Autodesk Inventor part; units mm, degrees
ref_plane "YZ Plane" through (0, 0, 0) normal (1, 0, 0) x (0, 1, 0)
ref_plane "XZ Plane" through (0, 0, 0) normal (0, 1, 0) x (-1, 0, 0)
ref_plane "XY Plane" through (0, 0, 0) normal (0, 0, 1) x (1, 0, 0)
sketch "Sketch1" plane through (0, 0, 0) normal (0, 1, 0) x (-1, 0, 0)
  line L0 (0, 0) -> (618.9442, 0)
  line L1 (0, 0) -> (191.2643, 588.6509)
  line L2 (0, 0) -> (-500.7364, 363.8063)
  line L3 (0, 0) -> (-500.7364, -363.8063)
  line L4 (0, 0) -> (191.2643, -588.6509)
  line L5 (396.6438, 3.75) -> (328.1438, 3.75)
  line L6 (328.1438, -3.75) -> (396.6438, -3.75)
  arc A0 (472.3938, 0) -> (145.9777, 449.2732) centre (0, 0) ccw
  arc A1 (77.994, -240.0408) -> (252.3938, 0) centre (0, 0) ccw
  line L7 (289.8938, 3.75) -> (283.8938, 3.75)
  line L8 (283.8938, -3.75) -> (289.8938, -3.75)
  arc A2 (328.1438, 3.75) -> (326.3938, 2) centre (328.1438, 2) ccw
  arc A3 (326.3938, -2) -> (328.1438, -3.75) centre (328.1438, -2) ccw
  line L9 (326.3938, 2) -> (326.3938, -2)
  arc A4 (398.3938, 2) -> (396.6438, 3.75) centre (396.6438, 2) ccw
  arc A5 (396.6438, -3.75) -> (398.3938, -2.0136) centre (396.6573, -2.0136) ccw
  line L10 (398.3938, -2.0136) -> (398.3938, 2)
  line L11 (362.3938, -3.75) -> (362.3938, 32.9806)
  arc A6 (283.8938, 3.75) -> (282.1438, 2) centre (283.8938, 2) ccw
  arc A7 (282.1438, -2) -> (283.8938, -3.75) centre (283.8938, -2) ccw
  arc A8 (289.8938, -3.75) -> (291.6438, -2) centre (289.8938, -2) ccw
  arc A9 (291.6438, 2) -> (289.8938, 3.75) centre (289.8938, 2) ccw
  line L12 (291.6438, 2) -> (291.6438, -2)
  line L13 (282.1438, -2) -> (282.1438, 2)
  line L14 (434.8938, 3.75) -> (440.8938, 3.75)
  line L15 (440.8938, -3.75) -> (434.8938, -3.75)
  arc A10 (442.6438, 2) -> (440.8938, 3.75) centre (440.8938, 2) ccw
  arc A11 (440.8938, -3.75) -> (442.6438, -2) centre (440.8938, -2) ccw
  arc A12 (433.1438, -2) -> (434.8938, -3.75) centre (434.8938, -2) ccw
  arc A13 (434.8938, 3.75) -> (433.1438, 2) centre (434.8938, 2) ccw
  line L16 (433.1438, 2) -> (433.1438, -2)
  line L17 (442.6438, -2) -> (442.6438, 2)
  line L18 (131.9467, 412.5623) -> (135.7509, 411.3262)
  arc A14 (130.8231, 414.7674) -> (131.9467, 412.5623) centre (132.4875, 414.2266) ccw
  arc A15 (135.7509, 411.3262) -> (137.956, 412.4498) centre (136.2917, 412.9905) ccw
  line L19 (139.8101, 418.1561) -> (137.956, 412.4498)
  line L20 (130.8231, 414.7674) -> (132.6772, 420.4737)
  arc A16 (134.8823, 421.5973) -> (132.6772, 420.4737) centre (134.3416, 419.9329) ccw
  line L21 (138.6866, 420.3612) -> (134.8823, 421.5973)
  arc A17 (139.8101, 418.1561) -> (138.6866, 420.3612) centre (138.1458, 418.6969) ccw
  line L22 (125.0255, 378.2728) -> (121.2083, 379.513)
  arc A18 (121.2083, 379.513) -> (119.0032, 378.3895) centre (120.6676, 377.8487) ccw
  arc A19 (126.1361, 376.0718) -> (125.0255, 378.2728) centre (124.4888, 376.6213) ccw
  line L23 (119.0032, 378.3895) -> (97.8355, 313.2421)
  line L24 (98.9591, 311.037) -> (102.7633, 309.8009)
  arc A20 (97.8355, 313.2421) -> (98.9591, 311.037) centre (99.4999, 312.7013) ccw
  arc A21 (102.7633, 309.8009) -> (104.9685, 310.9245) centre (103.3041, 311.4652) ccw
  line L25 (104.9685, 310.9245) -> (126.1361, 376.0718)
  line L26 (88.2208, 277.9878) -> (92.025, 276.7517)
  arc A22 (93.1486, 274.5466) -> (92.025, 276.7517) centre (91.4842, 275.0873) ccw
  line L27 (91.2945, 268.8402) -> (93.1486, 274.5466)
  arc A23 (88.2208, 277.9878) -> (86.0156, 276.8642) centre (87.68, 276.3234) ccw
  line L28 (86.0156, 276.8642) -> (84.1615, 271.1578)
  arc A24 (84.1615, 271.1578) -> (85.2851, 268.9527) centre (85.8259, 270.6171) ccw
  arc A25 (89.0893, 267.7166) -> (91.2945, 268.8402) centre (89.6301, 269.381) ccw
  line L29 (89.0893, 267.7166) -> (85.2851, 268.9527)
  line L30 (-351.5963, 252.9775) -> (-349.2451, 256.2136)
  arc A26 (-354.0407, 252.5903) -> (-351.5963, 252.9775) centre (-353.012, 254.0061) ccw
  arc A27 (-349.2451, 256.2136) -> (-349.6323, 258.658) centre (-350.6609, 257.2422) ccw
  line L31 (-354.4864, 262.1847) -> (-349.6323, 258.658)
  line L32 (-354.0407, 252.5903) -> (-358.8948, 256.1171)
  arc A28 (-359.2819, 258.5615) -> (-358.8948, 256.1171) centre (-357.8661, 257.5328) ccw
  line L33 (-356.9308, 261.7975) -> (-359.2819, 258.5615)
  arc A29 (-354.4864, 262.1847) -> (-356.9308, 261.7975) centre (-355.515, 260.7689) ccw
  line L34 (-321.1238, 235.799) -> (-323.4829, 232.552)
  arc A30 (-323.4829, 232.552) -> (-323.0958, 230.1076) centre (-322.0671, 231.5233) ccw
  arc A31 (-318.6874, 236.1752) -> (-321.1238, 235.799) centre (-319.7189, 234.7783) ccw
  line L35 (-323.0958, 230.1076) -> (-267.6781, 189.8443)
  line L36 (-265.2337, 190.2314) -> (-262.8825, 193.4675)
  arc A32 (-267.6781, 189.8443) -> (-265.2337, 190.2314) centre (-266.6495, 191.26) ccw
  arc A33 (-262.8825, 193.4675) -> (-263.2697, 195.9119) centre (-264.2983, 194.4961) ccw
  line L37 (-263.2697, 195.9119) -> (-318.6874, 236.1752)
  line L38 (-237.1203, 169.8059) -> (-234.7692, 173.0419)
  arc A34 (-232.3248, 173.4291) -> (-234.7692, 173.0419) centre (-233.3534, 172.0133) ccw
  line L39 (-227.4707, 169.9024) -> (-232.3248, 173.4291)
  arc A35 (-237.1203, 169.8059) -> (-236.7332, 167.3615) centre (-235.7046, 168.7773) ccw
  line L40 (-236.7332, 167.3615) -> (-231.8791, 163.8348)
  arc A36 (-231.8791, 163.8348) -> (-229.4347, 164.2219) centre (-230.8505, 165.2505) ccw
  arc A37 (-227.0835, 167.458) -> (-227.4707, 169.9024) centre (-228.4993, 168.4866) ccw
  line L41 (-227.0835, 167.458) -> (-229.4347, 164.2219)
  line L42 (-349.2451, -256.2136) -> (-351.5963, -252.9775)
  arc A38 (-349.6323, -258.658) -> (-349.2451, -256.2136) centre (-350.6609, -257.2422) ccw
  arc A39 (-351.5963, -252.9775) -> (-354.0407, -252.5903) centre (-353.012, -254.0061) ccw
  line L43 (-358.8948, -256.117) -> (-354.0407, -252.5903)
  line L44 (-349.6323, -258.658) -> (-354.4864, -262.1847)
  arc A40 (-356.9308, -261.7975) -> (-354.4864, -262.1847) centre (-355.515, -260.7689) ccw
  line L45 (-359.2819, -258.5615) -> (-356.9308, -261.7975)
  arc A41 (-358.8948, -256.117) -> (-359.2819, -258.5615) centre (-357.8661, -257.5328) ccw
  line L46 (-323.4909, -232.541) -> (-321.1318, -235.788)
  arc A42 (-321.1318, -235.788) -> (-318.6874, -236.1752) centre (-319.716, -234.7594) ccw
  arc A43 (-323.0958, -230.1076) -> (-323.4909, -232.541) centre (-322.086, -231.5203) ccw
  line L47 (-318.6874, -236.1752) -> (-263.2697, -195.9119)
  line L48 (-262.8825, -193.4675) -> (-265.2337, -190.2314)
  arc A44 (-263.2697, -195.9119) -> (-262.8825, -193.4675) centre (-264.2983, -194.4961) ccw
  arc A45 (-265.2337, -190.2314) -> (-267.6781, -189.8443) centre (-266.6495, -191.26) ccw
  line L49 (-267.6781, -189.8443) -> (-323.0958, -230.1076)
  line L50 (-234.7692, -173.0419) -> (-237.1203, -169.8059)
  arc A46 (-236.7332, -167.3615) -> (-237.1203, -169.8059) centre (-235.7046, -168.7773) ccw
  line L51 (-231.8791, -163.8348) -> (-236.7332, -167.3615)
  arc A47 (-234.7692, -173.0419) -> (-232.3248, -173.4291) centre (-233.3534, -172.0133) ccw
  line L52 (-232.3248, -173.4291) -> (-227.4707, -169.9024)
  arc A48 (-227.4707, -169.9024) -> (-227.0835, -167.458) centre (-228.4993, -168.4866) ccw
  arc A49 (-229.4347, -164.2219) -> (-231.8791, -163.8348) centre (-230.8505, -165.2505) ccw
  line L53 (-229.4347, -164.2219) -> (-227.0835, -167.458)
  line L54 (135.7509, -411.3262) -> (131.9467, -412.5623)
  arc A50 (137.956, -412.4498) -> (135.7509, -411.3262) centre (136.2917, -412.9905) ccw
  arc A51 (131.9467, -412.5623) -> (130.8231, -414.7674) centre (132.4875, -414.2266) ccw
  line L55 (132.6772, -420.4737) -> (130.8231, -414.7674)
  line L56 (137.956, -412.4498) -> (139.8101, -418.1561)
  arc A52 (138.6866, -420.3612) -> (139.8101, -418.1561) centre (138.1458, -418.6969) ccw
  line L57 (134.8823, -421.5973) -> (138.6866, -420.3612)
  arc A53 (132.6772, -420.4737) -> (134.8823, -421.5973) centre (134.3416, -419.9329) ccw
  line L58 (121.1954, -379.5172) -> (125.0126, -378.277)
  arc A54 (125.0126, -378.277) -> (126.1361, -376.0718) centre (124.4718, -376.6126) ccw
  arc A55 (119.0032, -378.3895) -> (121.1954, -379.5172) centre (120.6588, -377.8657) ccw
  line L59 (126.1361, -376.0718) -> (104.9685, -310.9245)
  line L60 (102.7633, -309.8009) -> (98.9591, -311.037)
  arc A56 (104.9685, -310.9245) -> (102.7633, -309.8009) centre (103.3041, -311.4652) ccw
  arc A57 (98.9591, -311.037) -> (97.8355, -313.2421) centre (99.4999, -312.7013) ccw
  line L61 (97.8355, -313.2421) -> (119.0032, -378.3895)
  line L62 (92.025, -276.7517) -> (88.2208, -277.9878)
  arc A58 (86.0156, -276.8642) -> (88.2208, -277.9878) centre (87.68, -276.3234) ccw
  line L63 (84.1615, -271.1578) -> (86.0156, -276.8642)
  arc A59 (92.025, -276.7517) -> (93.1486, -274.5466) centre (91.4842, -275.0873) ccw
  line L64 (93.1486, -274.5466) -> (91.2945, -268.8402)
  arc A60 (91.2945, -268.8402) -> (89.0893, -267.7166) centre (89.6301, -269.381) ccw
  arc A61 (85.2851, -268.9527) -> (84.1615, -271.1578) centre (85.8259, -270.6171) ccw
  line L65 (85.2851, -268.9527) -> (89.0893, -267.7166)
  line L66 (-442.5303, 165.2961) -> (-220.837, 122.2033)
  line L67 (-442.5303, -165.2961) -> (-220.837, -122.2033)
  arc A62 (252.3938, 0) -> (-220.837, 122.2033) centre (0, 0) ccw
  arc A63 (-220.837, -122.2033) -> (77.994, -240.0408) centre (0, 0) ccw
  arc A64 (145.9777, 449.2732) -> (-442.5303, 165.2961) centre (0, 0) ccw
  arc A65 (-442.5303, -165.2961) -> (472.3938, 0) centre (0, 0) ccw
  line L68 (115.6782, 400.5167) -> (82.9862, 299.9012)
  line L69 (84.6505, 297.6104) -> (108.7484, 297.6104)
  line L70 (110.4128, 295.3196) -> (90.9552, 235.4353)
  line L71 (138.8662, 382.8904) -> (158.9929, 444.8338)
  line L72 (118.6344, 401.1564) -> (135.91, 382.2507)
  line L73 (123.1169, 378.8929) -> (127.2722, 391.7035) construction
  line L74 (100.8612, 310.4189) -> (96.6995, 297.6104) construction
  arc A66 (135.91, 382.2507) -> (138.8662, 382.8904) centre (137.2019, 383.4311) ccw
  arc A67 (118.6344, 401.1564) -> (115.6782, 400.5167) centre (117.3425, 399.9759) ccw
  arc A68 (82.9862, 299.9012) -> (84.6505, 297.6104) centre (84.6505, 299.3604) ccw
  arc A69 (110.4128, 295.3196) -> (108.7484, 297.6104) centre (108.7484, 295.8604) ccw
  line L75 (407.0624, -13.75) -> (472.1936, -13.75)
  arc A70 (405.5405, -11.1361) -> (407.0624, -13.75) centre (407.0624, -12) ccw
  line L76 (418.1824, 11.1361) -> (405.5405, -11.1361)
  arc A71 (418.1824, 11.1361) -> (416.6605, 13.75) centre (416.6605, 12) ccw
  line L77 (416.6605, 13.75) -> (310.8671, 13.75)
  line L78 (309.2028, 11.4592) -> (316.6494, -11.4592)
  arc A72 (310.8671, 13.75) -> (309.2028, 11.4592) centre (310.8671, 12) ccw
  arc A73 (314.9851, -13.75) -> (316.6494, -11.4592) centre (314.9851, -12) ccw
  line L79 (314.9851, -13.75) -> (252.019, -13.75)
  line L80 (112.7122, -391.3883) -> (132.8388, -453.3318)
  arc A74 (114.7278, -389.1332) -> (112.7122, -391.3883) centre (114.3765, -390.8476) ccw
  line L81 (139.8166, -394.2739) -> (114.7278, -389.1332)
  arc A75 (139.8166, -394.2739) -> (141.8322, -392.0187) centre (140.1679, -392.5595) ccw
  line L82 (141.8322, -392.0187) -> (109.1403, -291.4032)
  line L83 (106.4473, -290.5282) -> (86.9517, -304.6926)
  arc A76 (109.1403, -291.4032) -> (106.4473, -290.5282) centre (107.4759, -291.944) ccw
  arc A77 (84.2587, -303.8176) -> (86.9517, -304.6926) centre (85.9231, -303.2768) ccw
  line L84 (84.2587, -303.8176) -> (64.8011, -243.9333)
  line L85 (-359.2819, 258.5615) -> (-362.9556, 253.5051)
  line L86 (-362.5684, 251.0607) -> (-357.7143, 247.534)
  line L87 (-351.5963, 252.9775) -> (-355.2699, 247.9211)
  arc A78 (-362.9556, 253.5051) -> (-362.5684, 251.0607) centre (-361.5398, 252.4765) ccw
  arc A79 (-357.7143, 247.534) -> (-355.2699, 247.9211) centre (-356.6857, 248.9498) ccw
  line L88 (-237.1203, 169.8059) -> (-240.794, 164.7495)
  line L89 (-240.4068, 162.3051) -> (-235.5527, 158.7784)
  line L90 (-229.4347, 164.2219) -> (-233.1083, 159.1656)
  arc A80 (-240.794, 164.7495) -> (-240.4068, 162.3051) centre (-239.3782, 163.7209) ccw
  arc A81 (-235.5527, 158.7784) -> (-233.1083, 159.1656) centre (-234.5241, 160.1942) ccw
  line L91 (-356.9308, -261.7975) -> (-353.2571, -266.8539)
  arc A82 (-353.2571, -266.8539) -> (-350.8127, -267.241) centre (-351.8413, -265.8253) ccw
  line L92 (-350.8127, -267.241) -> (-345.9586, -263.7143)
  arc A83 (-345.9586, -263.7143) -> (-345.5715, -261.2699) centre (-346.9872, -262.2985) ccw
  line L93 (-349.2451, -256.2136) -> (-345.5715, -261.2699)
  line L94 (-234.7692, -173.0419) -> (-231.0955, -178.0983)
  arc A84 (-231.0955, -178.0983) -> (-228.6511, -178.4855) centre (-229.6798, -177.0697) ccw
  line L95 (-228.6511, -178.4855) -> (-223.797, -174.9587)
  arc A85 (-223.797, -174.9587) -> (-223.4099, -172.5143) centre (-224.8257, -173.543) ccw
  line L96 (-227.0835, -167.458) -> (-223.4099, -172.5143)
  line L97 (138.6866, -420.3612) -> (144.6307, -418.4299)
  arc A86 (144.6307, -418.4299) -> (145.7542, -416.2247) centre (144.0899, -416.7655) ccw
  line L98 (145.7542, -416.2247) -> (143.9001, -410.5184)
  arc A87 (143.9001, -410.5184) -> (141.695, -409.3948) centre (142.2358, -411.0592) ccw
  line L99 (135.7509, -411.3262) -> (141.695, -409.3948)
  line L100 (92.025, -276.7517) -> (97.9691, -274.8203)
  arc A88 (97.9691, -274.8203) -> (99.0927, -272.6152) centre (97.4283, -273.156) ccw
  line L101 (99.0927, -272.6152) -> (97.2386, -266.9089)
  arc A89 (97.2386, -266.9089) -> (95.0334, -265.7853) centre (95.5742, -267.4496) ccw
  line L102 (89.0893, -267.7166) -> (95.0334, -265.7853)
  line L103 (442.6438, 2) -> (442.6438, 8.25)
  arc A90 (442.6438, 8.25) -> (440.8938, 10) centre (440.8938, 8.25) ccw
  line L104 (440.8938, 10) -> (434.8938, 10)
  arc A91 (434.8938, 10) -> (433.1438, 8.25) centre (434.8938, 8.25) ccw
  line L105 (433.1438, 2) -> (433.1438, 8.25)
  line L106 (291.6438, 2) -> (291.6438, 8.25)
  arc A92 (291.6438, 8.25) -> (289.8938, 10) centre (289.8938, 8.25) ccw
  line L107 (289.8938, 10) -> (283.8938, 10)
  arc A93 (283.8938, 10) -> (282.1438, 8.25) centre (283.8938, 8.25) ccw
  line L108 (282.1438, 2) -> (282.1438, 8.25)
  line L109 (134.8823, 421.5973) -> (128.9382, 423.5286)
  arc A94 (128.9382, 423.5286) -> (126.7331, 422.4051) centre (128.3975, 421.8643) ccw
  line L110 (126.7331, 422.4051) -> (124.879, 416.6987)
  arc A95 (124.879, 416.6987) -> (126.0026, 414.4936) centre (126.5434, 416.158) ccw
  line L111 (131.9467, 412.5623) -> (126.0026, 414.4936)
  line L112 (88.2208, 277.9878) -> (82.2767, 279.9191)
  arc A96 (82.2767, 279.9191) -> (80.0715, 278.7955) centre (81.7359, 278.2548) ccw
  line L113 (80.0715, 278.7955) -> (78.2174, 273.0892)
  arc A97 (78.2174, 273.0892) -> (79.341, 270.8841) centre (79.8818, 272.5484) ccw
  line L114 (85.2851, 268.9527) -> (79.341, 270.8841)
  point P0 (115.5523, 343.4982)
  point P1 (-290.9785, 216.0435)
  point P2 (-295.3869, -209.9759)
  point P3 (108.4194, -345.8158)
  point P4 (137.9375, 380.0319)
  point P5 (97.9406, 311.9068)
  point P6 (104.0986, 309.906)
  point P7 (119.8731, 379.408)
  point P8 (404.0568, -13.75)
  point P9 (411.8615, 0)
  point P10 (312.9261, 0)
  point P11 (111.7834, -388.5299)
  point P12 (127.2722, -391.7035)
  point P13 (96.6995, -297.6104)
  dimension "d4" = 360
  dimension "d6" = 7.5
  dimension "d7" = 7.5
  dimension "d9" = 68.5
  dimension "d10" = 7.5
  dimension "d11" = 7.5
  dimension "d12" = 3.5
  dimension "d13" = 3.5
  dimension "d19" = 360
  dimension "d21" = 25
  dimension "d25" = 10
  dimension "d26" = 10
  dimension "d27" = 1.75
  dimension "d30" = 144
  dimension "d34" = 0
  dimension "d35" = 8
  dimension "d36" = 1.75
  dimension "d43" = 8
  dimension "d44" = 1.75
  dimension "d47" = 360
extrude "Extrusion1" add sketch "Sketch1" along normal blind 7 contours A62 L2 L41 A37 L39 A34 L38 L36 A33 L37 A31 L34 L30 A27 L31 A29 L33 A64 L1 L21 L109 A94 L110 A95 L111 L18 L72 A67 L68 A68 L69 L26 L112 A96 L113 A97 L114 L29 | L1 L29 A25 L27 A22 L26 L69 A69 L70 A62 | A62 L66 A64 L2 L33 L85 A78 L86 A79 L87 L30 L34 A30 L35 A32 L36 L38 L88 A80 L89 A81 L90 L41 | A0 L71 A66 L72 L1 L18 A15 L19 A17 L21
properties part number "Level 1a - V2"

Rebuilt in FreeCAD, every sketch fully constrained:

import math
import FreeCAD as App
import Part
import Sketcher
from FreeCAD import Vector
Q = App.Units.Quantity

doc = App.newDocument("Part")
body = doc.addObject("PartDesign::Body", "Body")

sketch1 = body.newObject("Sketcher::SketchObject", "Sketch")
sketch1.AttachmentSupport = (doc.getObject("XZ_Plane"), [""])
sketch1.MapMode = "FlatFace"
sketch1.addGeometry([
    Part.LineSegment(Vector(-91, 235.4, 0), Vector(-110.4, 295.3, 0)),
    Part.ArcOfCircle(Part.Circle(Vector(-108.7, 295.9, 0), Vector(0, 0, 1), 1.8), math.radians(90), math.radians(198)),
    Part.LineSegment(Vector(-108.7, 297.6, 0), Vector(-84.7, 297.6, 0)),
    Part.ArcOfCircle(Part.Circle(Vector(-84.7, 299.4, 0), Vector(0, 0, 1), 1.7), math.radians(-90), math.radians(18)),
    Part.LineSegment(Vector(-83, 299.9, 0), Vector(-115.7, 400.5, 0)),
    Part.ArcOfCircle(Part.Circle(Vector(-117.3, 400, 0), Vector(0, 0, 1), 1.8), math.radians(18), math.radians(138)),
    Part.LineSegment(Vector(-118.6, 401.2, 0), Vector(-135.9, 382.3, 0)),
    Part.ArcOfCircle(Part.Circle(Vector(-137.2, 383.4, 0), Vector(0, 0, 1), 1.7), math.radians(-162), math.radians(-42)),
    Part.LineSegment(Vector(-138.9, 382.9, 0), Vector(-159, 444.8, 0)),
    Part.ArcOfCircle(Part.Circle(Vector(0, 0, 0), Vector(0, 0, 1), 472.4), math.radians(108), math.radians(109.67)),
    Part.ArcOfCircle(Part.Circle(Vector(0, 0, 0), Vector(0, 0, 1), 472.4), math.radians(20), math.radians(108)),
    Part.LineSegment(Vector(442.5, 165.3, 0), Vector(220.8, 122.2, 0)),
    Part.ArcOfCircle(Part.Circle(Vector(0, 0, 0), Vector(0, 0, 1), 252.4), math.radians(29), math.radians(111)),
    Part.LineSegment(Vector(227.1, 167.5, 0), Vector(229.4, 164.2, 0)),
    Part.LineSegment(Vector(229.4, 164.2, 0), Vector(233.1, 159.2, 0)),
    Part.ArcOfCircle(Part.Circle(Vector(234.5, 160.2, 0), Vector(0, 0, 1), 1.8), math.radians(-144), math.radians(-54)),
    Part.LineSegment(Vector(235.6, 158.8, 0), Vector(240.4, 162.3, 0)),
    Part.ArcOfCircle(Part.Circle(Vector(239.4, 163.7, 0), Vector(0, 0, 1), 1.8), math.radians(-54), math.radians(36)),
    Part.LineSegment(Vector(240.8, 164.7, 0), Vector(237.1, 169.8, 0)),
    Part.LineSegment(Vector(237.1, 169.8, 0), Vector(234.8, 173, 0)),
    Part.ArcOfCircle(Part.Circle(Vector(233.4, 172, 0), Vector(0, 0, 1), 1.8), math.radians(36), math.radians(126)),
    Part.LineSegment(Vector(232.3, 173.4, 0), Vector(227.5, 169.9, 0)),
    Part.ArcOfCircle(Part.Circle(Vector(228.5, 168.5, 0), Vector(0, 0, 1), 1.8), math.radians(126), math.radians(216)),
    Part.LineSegment(Vector(262.9, 193.5, 0), Vector(265.2, 190.2, 0)),
    Part.ArcOfCircle(Part.Circle(Vector(266.6, 191.3, 0), Vector(0, 0, 1), 1.7), math.radians(-144), math.radians(-54)),
    Part.LineSegment(Vector(267.7, 189.8, 0), Vector(323.1, 230.1, 0)),
    Part.ArcOfCircle(Part.Circle(Vector(322.1, 231.5, 0), Vector(0, 0, 1), 1.8), math.radians(-54), math.radians(36)),
    Part.LineSegment(Vector(323.5, 232.6, 0), Vector(321.1, 235.8, 0)),
    Part.ArcOfCircle(Part.Circle(Vector(319.7, 234.8, 0), Vector(0, 0, 1), 1.7), math.radians(36), math.radians(126)),
    Part.LineSegment(Vector(318.7, 236.2, 0), Vector(263.3, 195.9, 0)),
    Part.ArcOfCircle(Part.Circle(Vector(264.3, 194.5, 0), Vector(0, 0, 1), 1.8), math.radians(126), math.radians(216)),
    Part.LineSegment(Vector(349.2, 256.2, 0), Vector(351.6, 253, 0)),
    Part.LineSegment(Vector(351.6, 253, 0), Vector(355.3, 247.9, 0)),
    Part.ArcOfCircle(Part.Circle(Vector(356.7, 248.9, 0), Vector(0, 0, 1), 1.8), math.radians(-144), math.radians(-54)),
    Part.LineSegment(Vector(357.7, 247.5, 0), Vector(362.6, 251.1, 0)),
    Part.ArcOfCircle(Part.Circle(Vector(361.5, 252.5, 0), Vector(0, 0, 1), 1.8), math.radians(-54), math.radians(36)),
    Part.LineSegment(Vector(363, 253.5, 0), Vector(359.3, 258.6, 0)),
    Part.LineSegment(Vector(359.3, 258.6, 0), Vector(356.9, 261.8, 0)),
    Part.ArcOfCircle(Part.Circle(Vector(355.5, 260.8, 0), Vector(0, 0, 1), 1.8), math.radians(36), math.radians(126)),
    Part.LineSegment(Vector(354.5, 262.2, 0), Vector(349.6, 258.7, 0)),
    Part.ArcOfCircle(Part.Circle(Vector(350.7, 257.2, 0), Vector(0, 0, 1), 1.8), math.radians(126), math.radians(216)),
    Part.LineSegment(Vector(-134.9, 421.6, 0), Vector(-138.7, 420.4, 0)),
    Part.ArcOfCircle(Part.Circle(Vector(-138.1, 418.7, 0), Vector(0, 0, 1), 1.7), math.radians(108), math.radians(198)),
    Part.LineSegment(Vector(-139.8, 418.2, 0), Vector(-138, 412.4, 0)),
    Part.ArcOfCircle(Part.Circle(Vector(-136.3, 413, 0), Vector(0, 0, 1), 1.7), math.radians(-162), math.radians(-72)),
    Part.LineSegment(Vector(-135.8, 411.3, 0), Vector(-131.9, 412.6, 0)),
    Part.LineSegment(Vector(-131.9, 412.6, 0), Vector(-126, 414.5, 0)),
    Part.ArcOfCircle(Part.Circle(Vector(-126.5, 416.2, 0), Vector(0, 0, 1), 1.8), math.radians(-72), math.radians(18)),
    Part.LineSegment(Vector(-124.9, 416.7, 0), Vector(-126.7, 422.4, 0)),
    Part.ArcOfCircle(Part.Circle(Vector(-128.4, 421.9, 0), Vector(0, 0, 1), 1.7), math.radians(18), math.radians(108)),
    Part.LineSegment(Vector(-128.9, 423.5, 0), Vector(-134.9, 421.6, 0)),
    Part.LineSegment(Vector(-88.2, 278, 0), Vector(-92, 276.8, 0)),
    Part.ArcOfCircle(Part.Circle(Vector(-91.5, 275.1, 0), Vector(0, 0, 1), 1.8), math.radians(108), math.radians(198)),
    Part.LineSegment(Vector(-93.1, 274.5, 0), Vector(-91.3, 268.8, 0)),
    Part.ArcOfCircle(Part.Circle(Vector(-89.6, 269.4, 0), Vector(0, 0, 1), 1.8), math.radians(-162), math.radians(-72)),
    Part.LineSegment(Vector(-89.1, 267.7, 0), Vector(-85.3, 269, 0)),
    Part.LineSegment(Vector(-85.3, 269, 0), Vector(-79.3, 270.9, 0)),
    Part.ArcOfCircle(Part.Circle(Vector(-79.9, 272.5, 0), Vector(0, 0, 1), 1.8), math.radians(-72), math.radians(18)),
    Part.LineSegment(Vector(-78.2, 273.1, 0), Vector(-80.1, 278.8, 0)),
    Part.ArcOfCircle(Part.Circle(Vector(-81.7, 278.3, 0), Vector(0, 0, 1), 1.7), math.radians(18), math.radians(108)),
    Part.LineSegment(Vector(-82.3, 279.9, 0), Vector(-88.2, 278, 0)),
], False)
sketch1.addConstraint([
    Sketcher.Constraint("Tangent", 0, 2, 1, 2),
    Sketcher.Constraint("Tangent", 1, 1, 2, 1),
    Sketcher.Constraint("Tangent", 2, 2, 3, 1),
    Sketcher.Constraint("Tangent", 3, 2, 4, 1),
    Sketcher.Constraint("Tangent", 4, 2, 5, 1),
    Sketcher.Constraint("Tangent", 5, 2, 6, 1),
    Sketcher.Constraint("Tangent", 6, 2, 7, 2),
    Sketcher.Constraint("Tangent", 7, 1, 8, 1),
    Sketcher.Constraint("Coincident", 8, 2, 9, 2),
    Sketcher.Constraint("Tangent", 9, 1, 10, 2),
    Sketcher.Constraint("Coincident", 10, 1, 11, 1),
    Sketcher.Constraint("Coincident", 11, 2, 12, 1),
    Sketcher.Constraint("Coincident", 12, 2, 0, 1),
    Sketcher.Constraint("Coincident", 13, 2, 14, 1),
    Sketcher.Constraint("Tangent", 14, 2, 15, 1),
    Sketcher.Constraint("Tangent", 15, 2, 16, 1),
    Sketcher.Constraint("Tangent", 16, 2, 17, 1),
    Sketcher.Constraint("Tangent", 17, 2, 18, 1),
    Sketcher.Constraint("Coincident", 18, 2, 19, 1),
    Sketcher.Constraint("Tangent", 19, 2, 20, 1),
    Sketcher.Constraint("Tangent", 20, 2, 21, 1),
    Sketcher.Constraint("Tangent", 21, 2, 22, 1),
    Sketcher.Constraint("Tangent", 22, 2, 13, 1),
    Sketcher.Constraint("Tangent", 23, 2, 24, 1),
    Sketcher.Constraint("Tangent", 24, 2, 25, 1),
    Sketcher.Constraint("Tangent", 25, 2, 26, 1),
    Sketcher.Constraint("Tangent", 26, 2, 27, 1),
    Sketcher.Constraint("Tangent", 27, 2, 28, 1),
    Sketcher.Constraint("Coincident", 28, 2, 29, 1),
    Sketcher.Constraint("Tangent", 29, 2, 30, 1),
    Sketcher.Constraint("Tangent", 30, 2, 23, 1),
    Sketcher.Constraint("Coincident", 31, 2, 32, 1),
    Sketcher.Constraint("Tangent", 32, 2, 33, 1),
    Sketcher.Constraint("Tangent", 33, 2, 34, 1),
    Sketcher.Constraint("Tangent", 34, 2, 35, 1),
    Sketcher.Constraint("Tangent", 35, 2, 36, 1),
    Sketcher.Constraint("Coincident", 36, 2, 37, 1),
    Sketcher.Constraint("Tangent", 37, 2, 38, 1),
    Sketcher.Constraint("Tangent", 38, 2, 39, 1),
    Sketcher.Constraint("Tangent", 39, 2, 40, 1),
    Sketcher.Constraint("Tangent", 40, 2, 31, 1),
    Sketcher.Constraint("Tangent", 41, 2, 42, 1),
    Sketcher.Constraint("Tangent", 42, 2, 43, 1),
    Sketcher.Constraint("Tangent", 43, 2, 44, 1),
    Sketcher.Constraint("Tangent", 44, 2, 45, 1),
    Sketcher.Constraint("Coincident", 45, 2, 46, 1),
    Sketcher.Constraint("Tangent", 46, 2, 47, 1),
    Sketcher.Constraint("Tangent", 47, 2, 48, 1),
    Sketcher.Constraint("Tangent", 48, 2, 49, 1),
    Sketcher.Constraint("Tangent", 49, 2, 50, 1),
    Sketcher.Constraint("Coincident", 50, 2, 41, 1),
    Sketcher.Constraint("Tangent", 51, 2, 52, 1),
    Sketcher.Constraint("Tangent", 52, 2, 53, 1),
    Sketcher.Constraint("Tangent", 53, 2, 54, 1),
    Sketcher.Constraint("Tangent", 54, 2, 55, 1),
    Sketcher.Constraint("Coincident", 55, 2, 56, 1),
    Sketcher.Constraint("Tangent", 56, 2, 57, 1),
    Sketcher.Constraint("Tangent", 57, 2, 58, 1),
    Sketcher.Constraint("Tangent", 58, 2, 59, 1),
    Sketcher.Constraint("Tangent", 59, 2, 60, 1),
    Sketcher.Constraint("Coincident", 60, 2, 51, 1),
    Sketcher.Constraint("Horizontal", 2),
    Sketcher.Constraint("Coincident", 9, 3, -1, 1),
    Sketcher.Constraint("Coincident", 12, 3, -1, 1),
    Sketcher.Constraint("Equal", 1, 3),
    Sketcher.Constraint("Equal", 3, 5),
    Sketcher.Constraint("Equal", 5, 7),
    Sketcher.Constraint("Equal", 9, 10),
    Sketcher.Constraint("Equal", 7, 15),
    Sketcher.Constraint("Equal", 15, 17),
    Sketcher.Constraint("Equal", 17, 20),
    Sketcher.Constraint("Equal", 20, 22),
    Sketcher.Constraint("Equal", 22, 24),
    Sketcher.Constraint("Equal", 24, 26),
    Sketcher.Constraint("Equal", 26, 30),
    Sketcher.Constraint("Equal", 30, 33),
    Sketcher.Constraint("Equal", 33, 35),
    Sketcher.Constraint("Equal", 35, 38),
    Sketcher.Constraint("Equal", 38, 40),
    Sketcher.Constraint("Equal", 40, 42),
    Sketcher.Constraint("Equal", 42, 44),
    Sketcher.Constraint("Equal", 44, 47),
    Sketcher.Constraint("Equal", 47, 49),
    Sketcher.Constraint("Equal", 49, 52),
    Sketcher.Constraint("Equal", 52, 54),
    Sketcher.Constraint("Equal", 54, 57),
    Sketcher.Constraint("Equal", 57, 59),
    Sketcher.Constraint("Parallel", 0, 4),
    Sketcher.Constraint("Parallel", 4, 8),
    Sketcher.Constraint("Parallel", 13, 14),
    Sketcher.Constraint("Perpendicular", 14, 16),
    Sketcher.Constraint("Perpendicular", 16, 18),
    Sketcher.Constraint("Parallel", 18, 19),
    Sketcher.Constraint("Perpendicular", 19, 21),
    Sketcher.Constraint("Perpendicular", 21, 23),
    Sketcher.Constraint("Perpendicular", 23, 25),
    Sketcher.Constraint("Perpendicular", 25, 27),
    Sketcher.Constraint("Perpendicular", 27, 29),
    Sketcher.Constraint("Perpendicular", 29, 31),
    Sketcher.Constraint("Parallel", 31, 32),
    Sketcher.Constraint("Perpendicular", 32, 34),
    Sketcher.Constraint("Perpendicular", 34, 36),
    Sketcher.Constraint("Parallel", 36, 37),
    Sketcher.Constraint("Perpendicular", 37, 39),
    Sketcher.Constraint("Perpendicular", 8, 41),
    Sketcher.Constraint("Perpendicular", 41, 43),
    Sketcher.Constraint("Perpendicular", 43, 45),
    Sketcher.Constraint("Parallel", 45, 46),
    Sketcher.Constraint("Perpendicular", 46, 48),
    Sketcher.Constraint("Perpendicular", 48, 50),
    Sketcher.Constraint("Parallel", 50, 51),
    Sketcher.Constraint("Perpendicular", 51, 53),
    Sketcher.Constraint("Perpendicular", 53, 55),
    Sketcher.Constraint("Parallel", 55, 56),
    Sketcher.Constraint("Perpendicular", 56, 58),
    Sketcher.Constraint("Perpendicular", 58, 60),
    Sketcher.Constraint("Equal", 14, 18),
    Sketcher.Constraint("Equal", 19, 23),
    Sketcher.Constraint("Equal", 25, 29),
    Sketcher.Constraint("Equal", 23, 31),
    Sketcher.Constraint("Equal", 18, 32),
    Sketcher.Constraint("Equal", 21, 34),
    Sketcher.Constraint("Equal", 32, 36),
    Sketcher.Constraint("Equal", 37, 41),
    Sketcher.Constraint("Equal", 39, 43),
    Sketcher.Constraint("Equal", 41, 45),
    Sketcher.Constraint("Equal", 36, 46),
    Sketcher.Constraint("Equal", 45, 51),
    Sketcher.Constraint("Equal", 48, 53),
    Sketcher.Constraint("Equal", 51, 55),
    Sketcher.Constraint("Equal", 50, 56),
    Sketcher.Constraint("Angle", 21, Q("-144 deg")),
    Sketcher.Constraint("Radius", 1, 1.75),
    Sketcher.Constraint("Distance", 25, 68.5),
    Sketcher.Constraint("Angle", 0, Q("108 deg")),
    Sketcher.Constraint("Angle", 11, Q("-169 deg")),
    Sketcher.Constraint("Distance", 13, 4.0),
    Sketcher.Constraint("Distance", 16, 6.0),
    Sketcher.Constraint("Angle", 6, Q("-132.4204 deg")),
    Sketcher.Constraint("Radius", 9, 472.3938),
    Sketcher.Constraint("Radius", 12, 252.3938),
    Sketcher.Constraint("Radius", 28, 1.7365),
    Sketcher.Constraint("Distance", 6, 25.61),
    Sketcher.Constraint("Distance", 14, 6.25),
    Sketcher.Constraint("DistanceX", 2, 1, 2, 2, 24.098),
    Sketcher.Constraint("DistanceY", -1, 1, 24, 3, 191.26),
    Sketcher.Constraint("DistanceX", 54, 3, -1, 1, 89.63),
    Sketcher.Constraint("DistanceX", 6, 2, -1, 1, 135.91),
    Sketcher.Constraint("DistanceX", -1, 1, 32, 2, 355.27),
    Sketcher.Constraint("DistanceX", 42, 2, -1, 1, 139.81),
    Sketcher.Constraint("Distance", 0, 62.966),
    Sketcher.Constraint("DistanceY", -1, 1, 5, 3, 399.976),
    Sketcher.Constraint("DistanceX", -1, 1, 15, 3, 234.524),
    Sketcher.Constraint("DistanceY", -1, 1, 17, 3, 163.721),
    Sketcher.Constraint("DistanceX", -1, 1, 26, 3, 322.067),
    Sketcher.Constraint("DistanceY", -1, 1, 38, 3, 260.769),
    Sketcher.Constraint("DistanceY", -1, 1, 42, 3, 418.697),
    Sketcher.Constraint("DistanceY", -1, 1, 54, 3, 269.381),
    Sketcher.Constraint("DistanceX", -1, 1, 11, 2, 220.837),
    Sketcher.Constraint("DistanceX", 9, 1, -1, 1, 145.9777),
])
pad1 = body.newObject("PartDesign::Pad", "Pad")
pad1.Profile = sketch1
pad1.Length = 7
pad1.Reversed = True

doc.recompute()
